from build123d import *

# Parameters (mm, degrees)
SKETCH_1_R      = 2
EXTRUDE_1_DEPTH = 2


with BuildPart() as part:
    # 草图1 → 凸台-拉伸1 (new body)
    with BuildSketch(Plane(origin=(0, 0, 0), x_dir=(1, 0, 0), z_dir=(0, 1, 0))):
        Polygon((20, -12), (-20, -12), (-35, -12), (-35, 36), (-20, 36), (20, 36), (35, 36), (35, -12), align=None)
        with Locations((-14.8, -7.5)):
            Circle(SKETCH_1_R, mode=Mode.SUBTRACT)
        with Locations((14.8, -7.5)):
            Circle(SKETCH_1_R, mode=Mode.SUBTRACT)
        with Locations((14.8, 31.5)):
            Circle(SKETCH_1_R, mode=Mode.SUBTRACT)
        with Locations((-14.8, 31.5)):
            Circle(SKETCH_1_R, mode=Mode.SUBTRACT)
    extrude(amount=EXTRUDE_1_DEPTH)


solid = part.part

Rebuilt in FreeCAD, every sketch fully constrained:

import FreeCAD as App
import Part
import Sketcher

V = App.Vector
Q = App.Units.Quantity

doc = App.newDocument("Part")
body = doc.addObject("PartDesign::Body", "Body")

# Sketch on XZ plane
sketch1 = body.newObject("Sketcher::SketchObject", "Sketch")
sketch1.AttachmentSupport = (doc.getObject("XZ_Plane"), [""])
sketch1.MapMode = "FlatFace"
sketch1.addGeometry([
    Part.LineSegment(V(-35, 12, 0), V(35, 12, 0)),  # 0
    Part.LineSegment(V(35, 12, 0), V(35, -36, 0)),  # 1
    Part.LineSegment(V(35, -36, 0), V(-35, -36, 0)),  # 2
    Part.LineSegment(V(-35, -36, 0), V(-35, 12, 0)),  # 3
    Part.Circle(V(14.8, 7.5, 0), V(0, 0, 1), 2),  # 4
    Part.Circle(V(-14.8, 7.5, 0), V(0, 0, 1), 2),  # 5
    Part.Circle(V(14.8, -31.5, 0), V(0, 0, 1), 2),  # 6
    Part.Circle(V(-14.8, -31.5, 0), V(0, 0, 1), 2),  # 7
], False)
sketch1.addConstraint([
    Sketcher.Constraint("Coincident", 0, 2, 1, 1),
    Sketcher.Constraint("Coincident", 1, 2, 2, 1),
    Sketcher.Constraint("Coincident", 2, 2, 3, 1),
    Sketcher.Constraint("Coincident", 3, 2, 0, 1),
    Sketcher.Constraint("Horizontal", 0),
    Sketcher.Constraint("Vertical", 1),
    Sketcher.Constraint("Horizontal", 2),
    Sketcher.Constraint("Vertical", 3),
    Sketcher.Constraint("Equal", 4, 5),
    Sketcher.Constraint("Equal", 5, 6),
    Sketcher.Constraint("Equal", 6, 7),
    Sketcher.Constraint("Symmetric", 4, 3, 5, 3, -2),
    Sketcher.Constraint("Symmetric", 6, 3, 7, 3, -2),
    Sketcher.Constraint("Vertical", 4, 3, 6, 3),
    Sketcher.Constraint("Diameter", 4, Q("4 mm")),
    Sketcher.Constraint("DistanceX", 0, 1, 0, 2, Q("70 mm")),
    Sketcher.Constraint("DistanceY", 1, 2, 1, 1, Q("48 mm")),
    Sketcher.Constraint("DistanceX", -1, 1, 0, 2, Q("35 mm")),
    Sketcher.Constraint("DistanceY", -1, 1, 0, 2, Q("12 mm")),
    Sketcher.Constraint("DistanceY", 6, 3, 4, 3, Q("39 mm")),
    Sketcher.Constraint("DistanceX", -1, 1, 4, 3, Q("14.8 mm")),
    Sketcher.Constraint("DistanceY", -1, 1, 4, 3, Q("7.5 mm")),
])
pad1 = body.newObject("PartDesign::Pad", "Pad")
pad1.Profile = sketch1
pad1.Length = 2
pad1.Reversed = True

doc.recompute()
